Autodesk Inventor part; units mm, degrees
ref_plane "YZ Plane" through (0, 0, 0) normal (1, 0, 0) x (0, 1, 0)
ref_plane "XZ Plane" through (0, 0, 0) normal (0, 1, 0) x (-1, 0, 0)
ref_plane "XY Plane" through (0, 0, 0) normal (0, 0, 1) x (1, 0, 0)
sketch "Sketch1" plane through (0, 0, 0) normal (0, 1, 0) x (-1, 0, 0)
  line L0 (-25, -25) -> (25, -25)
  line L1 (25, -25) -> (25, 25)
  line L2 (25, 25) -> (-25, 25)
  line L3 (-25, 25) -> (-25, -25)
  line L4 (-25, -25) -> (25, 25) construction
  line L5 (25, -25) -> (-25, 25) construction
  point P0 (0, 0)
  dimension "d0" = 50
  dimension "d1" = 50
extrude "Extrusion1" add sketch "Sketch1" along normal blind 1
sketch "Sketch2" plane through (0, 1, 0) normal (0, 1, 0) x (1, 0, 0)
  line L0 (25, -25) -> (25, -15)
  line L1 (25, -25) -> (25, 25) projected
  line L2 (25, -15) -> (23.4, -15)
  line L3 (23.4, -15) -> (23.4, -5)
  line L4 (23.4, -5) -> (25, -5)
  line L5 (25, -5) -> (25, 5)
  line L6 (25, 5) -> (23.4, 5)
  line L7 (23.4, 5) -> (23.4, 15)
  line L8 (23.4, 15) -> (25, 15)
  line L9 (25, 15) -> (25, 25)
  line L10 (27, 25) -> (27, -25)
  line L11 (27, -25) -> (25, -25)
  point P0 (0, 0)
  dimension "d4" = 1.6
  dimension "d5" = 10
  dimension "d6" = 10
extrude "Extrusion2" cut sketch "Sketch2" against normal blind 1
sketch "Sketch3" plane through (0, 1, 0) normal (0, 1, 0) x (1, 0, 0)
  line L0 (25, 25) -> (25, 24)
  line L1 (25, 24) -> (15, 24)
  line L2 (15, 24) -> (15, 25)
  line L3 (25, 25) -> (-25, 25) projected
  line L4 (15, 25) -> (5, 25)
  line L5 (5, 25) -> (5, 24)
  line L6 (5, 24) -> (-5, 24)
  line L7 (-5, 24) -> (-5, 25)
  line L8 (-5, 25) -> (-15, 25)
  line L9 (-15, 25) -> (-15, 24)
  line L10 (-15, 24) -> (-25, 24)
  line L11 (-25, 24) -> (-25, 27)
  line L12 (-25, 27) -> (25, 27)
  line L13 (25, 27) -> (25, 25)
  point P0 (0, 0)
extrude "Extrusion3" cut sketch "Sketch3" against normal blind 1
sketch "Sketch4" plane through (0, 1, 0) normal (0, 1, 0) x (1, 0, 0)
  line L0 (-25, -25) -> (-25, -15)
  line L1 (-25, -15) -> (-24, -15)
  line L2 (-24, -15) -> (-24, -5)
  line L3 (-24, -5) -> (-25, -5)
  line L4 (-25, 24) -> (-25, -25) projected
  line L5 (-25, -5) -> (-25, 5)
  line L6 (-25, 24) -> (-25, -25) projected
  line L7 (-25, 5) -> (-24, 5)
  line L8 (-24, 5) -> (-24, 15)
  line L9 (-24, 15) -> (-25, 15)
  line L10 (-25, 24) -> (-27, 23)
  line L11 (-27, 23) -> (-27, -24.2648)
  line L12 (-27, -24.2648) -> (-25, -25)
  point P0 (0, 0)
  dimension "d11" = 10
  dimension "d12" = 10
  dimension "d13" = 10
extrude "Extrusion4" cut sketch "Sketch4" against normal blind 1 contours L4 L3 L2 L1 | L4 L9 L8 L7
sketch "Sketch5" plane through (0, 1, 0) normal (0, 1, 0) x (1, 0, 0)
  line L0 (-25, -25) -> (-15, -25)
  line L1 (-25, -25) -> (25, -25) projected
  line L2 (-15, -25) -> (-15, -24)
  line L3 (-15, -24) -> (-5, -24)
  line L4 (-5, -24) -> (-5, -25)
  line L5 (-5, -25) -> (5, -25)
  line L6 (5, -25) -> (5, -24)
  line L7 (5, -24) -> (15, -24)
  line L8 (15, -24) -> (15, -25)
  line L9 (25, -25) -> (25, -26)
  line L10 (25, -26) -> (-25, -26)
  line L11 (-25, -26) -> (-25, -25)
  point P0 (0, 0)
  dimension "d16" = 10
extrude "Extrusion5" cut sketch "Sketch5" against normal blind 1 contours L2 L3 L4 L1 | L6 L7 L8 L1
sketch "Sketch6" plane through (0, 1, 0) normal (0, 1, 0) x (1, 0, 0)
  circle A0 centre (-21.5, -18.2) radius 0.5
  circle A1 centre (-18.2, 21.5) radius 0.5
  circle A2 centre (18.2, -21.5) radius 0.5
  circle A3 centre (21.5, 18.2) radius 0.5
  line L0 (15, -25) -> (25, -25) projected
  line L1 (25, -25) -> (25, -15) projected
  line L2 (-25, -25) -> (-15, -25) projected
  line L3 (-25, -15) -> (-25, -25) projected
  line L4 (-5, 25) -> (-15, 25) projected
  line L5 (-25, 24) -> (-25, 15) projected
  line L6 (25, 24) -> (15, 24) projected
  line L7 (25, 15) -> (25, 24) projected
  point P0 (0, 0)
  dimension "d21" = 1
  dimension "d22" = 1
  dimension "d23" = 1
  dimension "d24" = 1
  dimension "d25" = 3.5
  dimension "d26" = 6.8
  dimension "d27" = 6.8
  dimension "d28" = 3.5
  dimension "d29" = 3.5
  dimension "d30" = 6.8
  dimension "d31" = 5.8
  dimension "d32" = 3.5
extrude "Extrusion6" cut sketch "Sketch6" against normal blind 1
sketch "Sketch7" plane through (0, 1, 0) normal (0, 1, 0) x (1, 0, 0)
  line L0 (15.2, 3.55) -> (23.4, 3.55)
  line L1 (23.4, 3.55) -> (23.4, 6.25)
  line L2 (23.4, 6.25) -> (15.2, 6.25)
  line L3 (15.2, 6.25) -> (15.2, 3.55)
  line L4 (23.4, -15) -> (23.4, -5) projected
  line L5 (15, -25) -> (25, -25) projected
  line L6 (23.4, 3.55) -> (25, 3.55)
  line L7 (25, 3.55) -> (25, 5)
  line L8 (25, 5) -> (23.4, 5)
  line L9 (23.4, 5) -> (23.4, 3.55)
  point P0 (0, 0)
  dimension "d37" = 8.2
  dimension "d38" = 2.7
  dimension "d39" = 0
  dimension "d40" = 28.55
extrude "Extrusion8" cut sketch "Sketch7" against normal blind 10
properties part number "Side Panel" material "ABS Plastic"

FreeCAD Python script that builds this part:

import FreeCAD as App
import Part
import Sketcher
from FreeCAD import Vector

doc = App.newDocument("Part")
params = doc.addObject("Spreadsheet::Sheet", "Params")
for row, (alias, value) in enumerate([
    ("sketch1_width", "50 mm"),
    ("pad1_length", "1 mm"),
    ("sketch2_height", "10 mm"),
    ("sketch2_width", "1.6 mm"),
    ("pocket1_length", "1 mm"),
    ("sketch3_width", "50 mm"),
    ("sketch3_height", "3 mm"),
    ("sketch3_height2", "1 mm"),
    ("pocket2_length", "1 mm"),
    ("sketch4_height", "10 mm"),
    ("sketch4_width", "1 mm"),
    ("pocket3_length", "1 mm"),
    ("sketch5_width", "10 mm"),
    ("sketch5_height", "1 mm"),
    ("pocket4_length", "1 mm"),
    ("sketch6_diameter", "1 mm"),
    ("pocket5_length", "1 mm"),
    ("sketch7_width", "8.2 mm"),
    ("sketch7_height", "2.7 mm"),
    ("sketch7_width2", "9.8 mm"),
    ("sketch7_height2", "1.45 mm"),
    ("pocket6_length", "10 mm"),
], start=1):
    params.set(f"A{row}", alias)
    params.set(f"B{row}", "=" + value)
    params.setAlias(f"B{row}", alias)

body = doc.addObject("PartDesign::Body", "Body")

sketch1 = doc.addObject("Sketcher::SketchObject", "Sketch")
body.addObject(sketch1)
sketch1.AttachmentSupport = (doc.XZ_Plane, [""])
sketch1.MapMode = "FlatFace"
sketch1.addGeometry(Part.LineSegment(Vector(25, 25, 0), Vector(25, -25, 0)), False)
sketch1.addGeometry(Part.LineSegment(Vector(25, -25, 0), Vector(-25, -25, 0)), False)
sketch1.addGeometry(Part.LineSegment(Vector(-25, -25, 0), Vector(-25, 25, 0)), False)
sketch1.addGeometry(Part.LineSegment(Vector(-25, 25, 0), Vector(25, 25, 0)), False)
sketch1.addConstraint(Sketcher.Constraint("Coincident", 0, 2, 1, 1))
sketch1.addConstraint(Sketcher.Constraint("Coincident", 1, 2, 2, 1))
sketch1.addConstraint(Sketcher.Constraint("Coincident", 2, 2, 3, 1))
sketch1.addConstraint(Sketcher.Constraint("Coincident", 3, 2, 0, 1))
sketch1.addConstraint(Sketcher.Constraint("Vertical", 0))
sketch1.addConstraint(Sketcher.Constraint("Horizontal", 1))
sketch1.addConstraint(Sketcher.Constraint("Vertical", 2))
sketch1.addConstraint(Sketcher.Constraint("Horizontal", 3))
sketch1.addConstraint(Sketcher.Constraint("Symmetric", 0, 2, 2, 2, -1, 1))
sketch1.addConstraint(Sketcher.Constraint("Equal", 3, 0))
sketch1.addConstraint(Sketcher.Constraint("DistanceX", 1, 2, 1, 1, 50.0))
sketch1.setExpression("Constraints[10]", "Params.sketch1_width")
pad1 = doc.addObject("PartDesign::Pad", "Pad")
body.addObject(pad1)
pad1.Profile = sketch1
pad1.setExpression("Length", "Params.pad1_length")
pad1.Reversed = True

sketch2 = doc.addObject("Sketcher::SketchObject", "Sketch001")
body.addObject(sketch2)
sketch2.AttachmentSupport = (doc.XZ_Plane, [""])
sketch2.MapMode = "FlatFace"
sketch2.AttachmentOffset = App.Placement(Vector(0, 0, -1), App.Rotation())
sketch2.addGeometry(Part.LineSegment(Vector(23.4, 15, 0), Vector(25, 15, 0)), False)
sketch2.addGeometry(Part.LineSegment(Vector(25, 15, 0), Vector(25, 5, 0)), False)
sketch2.addGeometry(Part.LineSegment(Vector(25, 5, 0), Vector(23.4, 5, 0)), False)
sketch2.addGeometry(Part.LineSegment(Vector(23.4, 5, 0), Vector(23.4, 15, 0)), False)
sketch2.addGeometry(Part.LineSegment(Vector(23.4, -5, 0), Vector(25, -5, 0)), False)
sketch2.addGeometry(Part.LineSegment(Vector(25, -5, 0), Vector(25, -15, 0)), False)
sketch2.addGeometry(Part.LineSegment(Vector(25, -15, 0), Vector(23.4, -15, 0)), False)
sketch2.addGeometry(Part.LineSegment(Vector(23.4, -15, 0), Vector(23.4, -5, 0)), False)
sketch2.addConstraint(Sketcher.Constraint("Coincident", 0, 2, 1, 1))
sketch2.addConstraint(Sketcher.Constraint("Coincident", 1, 2, 2, 1))
sketch2.addConstraint(Sketcher.Constraint("Coincident", 2, 2, 3, 1))
sketch2.addConstraint(Sketcher.Constraint("Coincident", 3, 2, 0, 1))
sketch2.addConstraint(Sketcher.Constraint("Coincident", 4, 2, 5, 1))
sketch2.addConstraint(Sketcher.Constraint("Coincident", 5, 2, 6, 1))
sketch2.addConstraint(Sketcher.Constraint("Coincident", 6, 2, 7, 1))
sketch2.addConstraint(Sketcher.Constraint("Coincident", 7, 2, 4, 1))
sketch2.addConstraint(Sketcher.Constraint("Horizontal", 0))
sketch2.addConstraint(Sketcher.Constraint("Vertical", 1))
sketch2.addConstraint(Sketcher.Constraint("Horizontal", 2))
sketch2.addConstraint(Sketcher.Constraint("Vertical", 3))
sketch2.addConstraint(Sketcher.Constraint("Horizontal", 4))
sketch2.addConstraint(Sketcher.Constraint("Vertical", 5))
sketch2.addConstraint(Sketcher.Constraint("Horizontal", 6))
sketch2.addConstraint(Sketcher.Constraint("Vertical", 7))
sketch2.addConstraint(Sketcher.Constraint("Symmetric", 1, 2, 4, 2, -1))
sketch2.addConstraint(Sketcher.Constraint("Symmetric", 3, 2, 6, 2, -1))
sketch2.addConstraint(Sketcher.Constraint("DistanceY", 1, 2, 1, 1, 10.0))
sketch2.addConstraint(Sketcher.Constraint("DistanceX", 0, 1, 0, 2, 1.6))
sketch2.addConstraint(Sketcher.Constraint("DistanceY", 4, 2, 1, 2, 10.0))
sketch2.addConstraint(Sketcher.Constraint("DistanceX", -1, 1, 0, 2, 25.0))
sketch2.setExpression("Constraints[18]", "Params.sketch2_height")
sketch2.setExpression("Constraints[19]", "Params.sketch2_width")
pocket1 = doc.addObject("PartDesign::Pocket", "Pocket")
body.addObject(pocket1)
pocket1.Profile = sketch2
pocket1.setExpression("Length", "Params.pocket1_length")
pocket1.Reversed = True

sketch3 = doc.addObject("Sketcher::SketchObject", "Sketch002")
body.addObject(sketch3)
sketch3.AttachmentSupport = (doc.XZ_Plane, [""])
sketch3.MapMode = "FlatFace"
sketch3.AttachmentOffset = App.Placement(Vector(0, 0, -1), App.Rotation())
sketch3.addGeometry(Part.LineSegment(Vector(25, -24, 0), Vector(25, -27, 0)), False)
sketch3.addGeometry(Part.LineSegment(Vector(25, -27, 0), Vector(-25, -27, 0)), False)
sketch3.addGeometry(Part.LineSegment(Vector(-25, -27, 0), Vector(-25, -24, 0)), False)
sketch3.addGeometry(Part.LineSegment(Vector(-25, -24, 0), Vector(-15, -24, 0)), False)
sketch3.addGeometry(Part.LineSegment(Vector(-15, -24, 0), Vector(-15, -25, 0)), False)
sketch3.addGeometry(Part.LineSegment(Vector(-15, -25, 0), Vector(-5, -25, 0)), False)
sketch3.addGeometry(Part.LineSegment(Vector(-5, -25, 0), Vector(-5, -24, 0)), False)
sketch3.addGeometry(Part.LineSegment(Vector(-5, -24, 0), Vector(5, -24, 0)), False)
sketch3.addGeometry(Part.LineSegment(Vector(5, -24, 0), Vector(5, -25, 0)), False)
sketch3.addGeometry(Part.LineSegment(Vector(5, -25, 0), Vector(15, -25, 0)), False)
sketch3.addGeometry(Part.LineSegment(Vector(15, -25, 0), Vector(15, -24, 0)), False)
sketch3.addGeometry(Part.LineSegment(Vector(15, -24, 0), Vector(25, -24, 0)), False)
sketch3.addConstraint(Sketcher.Constraint("Coincident", 0, 2, 1, 1))
sketch3.addConstraint(Sketcher.Constraint("Coincident", 1, 2, 2, 1))
sketch3.addConstraint(Sketcher.Constraint("Coincident", 2, 2, 3, 1))
sketch3.addConstraint(Sketcher.Constraint("Coincident", 3, 2, 4, 1))
sketch3.addConstraint(Sketcher.Constraint("Coincident", 4, 2, 5, 1))
sketch3.addConstraint(Sketcher.Constraint("Coincident", 5, 2, 6, 1))
sketch3.addConstraint(Sketcher.Constraint("Coincident", 6, 2, 7, 1))
sketch3.addConstraint(Sketcher.Constraint("Coincident", 7, 2, 8, 1))
sketch3.addConstraint(Sketcher.Constraint("Coincident", 8, 2, 9, 1))
sketch3.addConstraint(Sketcher.Constraint("Coincident", 9, 2, 10, 1))
sketch3.addConstraint(Sketcher.Constraint("Coincident", 10, 2, 11, 1))
sketch3.addConstraint(Sketcher.Constraint("Coincident", 11, 2, 0, 1))
sketch3.addConstraint(Sketcher.Constraint("Vertical", 0))
sketch3.addConstraint(Sketcher.Constraint("Horizontal", 1))
sketch3.addConstraint(Sketcher.Constraint("Vertical", 2))
sketch3.addConstraint(Sketcher.Constraint("Horizontal", 3))
sketch3.addConstraint(Sketcher.Constraint("Vertical", 4))
sketch3.addConstraint(Sketcher.Constraint("Horizontal", 5))
sketch3.addConstraint(Sketcher.Constraint("Vertical", 6))
sketch3.addConstraint(Sketcher.Constraint("Horizontal", 7))
sketch3.addConstraint(Sketcher.Constraint("Vertical", 8))
sketch3.addConstraint(Sketcher.Constraint("Horizontal", 9))
sketch3.addConstraint(Sketcher.Constraint("Vertical", 10))
sketch3.addConstraint(Sketcher.Constraint("Horizontal", 11))
sketch3.addConstraint(Sketcher.Constraint("Symmetric", 5, 2, 8, 2, -2))
sketch3.addConstraint(Sketcher.Constraint("Symmetric", 3, 2, 10, 2, -2))
sketch3.addConstraint(Sketcher.Constraint("Horizontal", 3, 2, 6, 2))
sketch3.addConstraint(Sketcher.Constraint("Equal", 3, 5))
sketch3.addConstraint(Sketcher.Constraint("Equal", 5, 7))
sketch3.addConstraint(Sketcher.Constraint("Equal", 9, 11))
sketch3.addConstraint(Sketcher.Constraint("DistanceX", 1, 2, 1, 1, 50.0))
sketch3.addConstraint(Sketcher.Constraint("DistanceY", 0, 2, 0, 1, 3.0))
sketch3.addConstraint(Sketcher.Constraint("DistanceY", 4, 2, 4, 1, 1.0))
sketch3.addConstraint(Sketcher.Constraint("DistanceY", 0, 2, -1, 1, 27.0))
sketch3.setExpression("Constraints[30]", "Params.sketch3_width")
sketch3.setExpression("Constraints[31]", "Params.sketch3_height")
sketch3.setExpression("Constraints[32]", "Params.sketch3_height2")
pocket2 = doc.addObject("PartDesign::Pocket", "Pocket001")
body.addObject(pocket2)
pocket2.Profile = sketch3
pocket2.setExpression("Length", "Params.pocket2_length")
pocket2.Reversed = True

sketch4 = doc.addObject("Sketcher::SketchObject", "Sketch003")
body.addObject(sketch4)
sketch4.AttachmentSupport = (doc.XZ_Plane, [""])
sketch4.MapMode = "FlatFace"
sketch4.AttachmentOffset = App.Placement(Vector(0, 0, -1), App.Rotation())
sketch4.addGeometry(Part.LineSegment(Vector(-25, 5, 0), Vector(-25, 15, 0)), False)
sketch4.addGeometry(Part.LineSegment(Vector(-25, 15, 0), Vector(-24, 15, 0)), False)
sketch4.addGeometry(Part.LineSegment(Vector(-24, 15, 0), Vector(-24, 5, 0)), False)
sketch4.addGeometry(Part.LineSegment(Vector(-24, 5, 0), Vector(-25, 5, 0)), False)
sketch4.addGeometry(Part.LineSegment(Vector(-25, -15, 0), Vector(-25, -5, 0)), False)
sketch4.addGeometry(Part.LineSegment(Vector(-25, -5, 0), Vector(-24, -5, 0)), False)
sketch4.addGeometry(Part.LineSegment(Vector(-24, -5, 0), Vector(-24, -15, 0)), False)
sketch4.addGeometry(Part.LineSegment(Vector(-24, -15, 0), Vector(-25, -15, 0)), False)
sketch4.addConstraint(Sketcher.Constraint("Coincident", 0, 2, 1, 1))
sketch4.addConstraint(Sketcher.Constraint("Coincident", 1, 2, 2, 1))
sketch4.addConstraint(Sketcher.Constraint("Coincident", 2, 2, 3, 1))
sketch4.addConstraint(Sketcher.Constraint("Coincident", 3, 2, 0, 1))
sketch4.addConstraint(Sketcher.Constraint("Coincident", 4, 2, 5, 1))
sketch4.addConstraint(Sketcher.Constraint("Coincident", 5, 2, 6, 1))
sketch4.addConstraint(Sketcher.Constraint("Coincident", 6, 2, 7, 1))
sketch4.addConstraint(Sketcher.Constraint("Coincident", 7, 2, 4, 1))
sketch4.addConstraint(Sketcher.Constraint("Vertical", 0))
sketch4.addConstraint(Sketcher.Constraint("Horizontal", 1))
sketch4.addConstraint(Sketcher.Constraint("Vertical", 2))
sketch4.addConstraint(Sketcher.Constraint("Horizontal", 3))
sketch4.addConstraint(Sketcher.Constraint("Vertical", 4))
sketch4.addConstraint(Sketcher.Constraint("Horizontal", 5))
sketch4.addConstraint(Sketcher.Constraint("Vertical", 6))
sketch4.addConstraint(Sketcher.Constraint("Horizontal", 7))
sketch4.addConstraint(Sketcher.Constraint("Symmetric", 3, 2, 4, 2, -1))
sketch4.addConstraint(Sketcher.Constraint("Symmetric", 1, 2, 6, 2, -1))
sketch4.addConstraint(Sketcher.Constraint("DistanceY", 0, 1, 0, 2, 10.0))
sketch4.addConstraint(Sketcher.Constraint("DistanceY", 4, 2, 3, 2, 10.0))
sketch4.addConstraint(Sketcher.Constraint("DistanceX", 1, 1, 1, 2, 1.0))
sketch4.addConstraint(Sketcher.Constraint("DistanceX", 0, 2, -1, 1, 25.0))
sketch4.setExpression("Constraints[18]", "Params.sketch4_height")
sketch4.setExpression("Constraints[20]", "Params.sketch4_width")
pocket3 = doc.addObject("PartDesign::Pocket", "Pocket002")
body.addObject(pocket3)
pocket3.Profile = sketch4
pocket3.setExpression("Length", "Params.pocket3_length")
pocket3.Reversed = True

sketch5 = doc.addObject("Sketcher::SketchObject", "Sketch004")
body.addObject(sketch5)
sketch5.AttachmentSupport = (doc.XZ_Plane, [""])
sketch5.MapMode = "FlatFace"
sketch5.AttachmentOffset = App.Placement(Vector(0, 0, -1), App.Rotation())
sketch5.addGeometry(Part.LineSegment(Vector(-15, 24, 0), Vector(-15, 25, 0)), False)
sketch5.addGeometry(Part.LineSegment(Vector(-15, 25, 0), Vector(-5, 25, 0)), False)
sketch5.addGeometry(Part.LineSegment(Vector(-5, 25, 0), Vector(-5, 24, 0)), False)
sketch5.addGeometry(Part.LineSegment(Vector(-5, 24, 0), Vector(-15, 24, 0)), False)
sketch5.addGeometry(Part.LineSegment(Vector(5, 24, 0), Vector(5, 25, 0)), False)
sketch5.addGeometry(Part.LineSegment(Vector(5, 25, 0), Vector(15, 25, 0)), False)
sketch5.addGeometry(Part.LineSegment(Vector(15, 25, 0), Vector(15, 24, 0)), False)
sketch5.addGeometry(Part.LineSegment(Vector(15, 24, 0), Vector(5, 24, 0)), False)
sketch5.addConstraint(Sketcher.Constraint("Coincident", 0, 2, 1, 1))
sketch5.addConstraint(Sketcher.Constraint("Coincident", 1, 2, 2, 1))
sketch5.addConstraint(Sketcher.Constraint("Coincident", 2, 2, 3, 1))
sketch5.addConstraint(Sketcher.Constraint("Coincident", 3, 2, 0, 1))
sketch5.addConstraint(Sketcher.Constraint("Coincident", 4, 2, 5, 1))
sketch5.addConstraint(Sketcher.Constraint("Coincident", 5, 2, 6, 1))
sketch5.addConstraint(Sketcher.Constraint("Coincident", 6, 2, 7, 1))
sketch5.addConstraint(Sketcher.Constraint("Coincident", 7, 2, 4, 1))
sketch5.addConstraint(Sketcher.Constraint("Vertical", 0))
sketch5.addConstraint(Sketcher.Constraint("Horizontal", 1))
sketch5.addConstraint(Sketcher.Constraint("Vertical", 2))
sketch5.addConstraint(Sketcher.Constraint("Horizontal", 3))
sketch5.addConstraint(Sketcher.Constraint("Vertical", 4))
sketch5.addConstraint(Sketcher.Constraint("Horizontal", 5))
sketch5.addConstraint(Sketcher.Constraint("Vertical", 6))
sketch5.addConstraint(Sketcher.Constraint("Horizontal", 7))
sketch5.addConstraint(Sketcher.Constraint("Symmetric", 1, 2, 4, 2, -2))
sketch5.addConstraint(Sketcher.Constraint("Symmetric", 3, 2, 6, 2, -2))
sketch5.addConstraint(Sketcher.Constraint("DistanceX", 1, 1, 1, 2, 10.0))
sketch5.addConstraint(Sketcher.Constraint("DistanceX", 1, 2, 4, 2, 10.0))
sketch5.addConstraint(Sketcher.Constraint("DistanceY", 0, 1, 0, 2, 1.0))
sketch5.addConstraint(Sketcher.Constraint("DistanceY", -1, 1, 0, 2, 25.0))
sketch5.setExpression("Constraints[18]", "Params.sketch5_width")
sketch5.setExpression("Constraints[20]", "Params.sketch5_height")
pocket4 = doc.addObject("PartDesign::Pocket", "Pocket003")
body.addObject(pocket4)
pocket4.Profile = sketch5
pocket4.setExpression("Length", "Params.pocket4_length")
pocket4.Reversed = True

sketch6 = doc.addObject("Sketcher::SketchObject", "Sketch005")
body.addObject(sketch6)
sketch6.AttachmentSupport = (doc.XZ_Plane, [""])
sketch6.MapMode = "FlatFace"
sketch6.AttachmentOffset = App.Placement(Vector(0, 0, -1), App.Rotation())
sketch6.addGeometry(Part.Circle(Vector(-21.5, 18.2, 0), Vector(0, 0, 1), 0.5), False)
sketch6.addGeometry(Part.Circle(Vector(-18.2, -21.5, 0), Vector(0, 0, 1), 0.5), False)
sketch6.addGeometry(Part.Circle(Vector(18.2, 21.5, 0), Vector(0, 0, 1), 0.5), False)
sketch6.addGeometry(Part.Circle(Vector(21.5, -18.2, 0), Vector(0, 0, 1), 0.5), False)
sketch6.addConstraint(Sketcher.Constraint("Equal", 0, 1))
sketch6.addConstraint(Sketcher.Constraint("Equal", 1, 2))
sketch6.addConstraint(Sketcher.Constraint("Equal", 2, 3))
sketch6.addConstraint(Sketcher.Constraint("Symmetric", 1, 3, 2, 3, -1, 1))
sketch6.addConstraint(Sketcher.Constraint("Symmetric", 0, 3, 3, 3, -1, 1))
sketch6.addConstraint(Sketcher.Constraint("Diameter", 0, 1.0))
sketch6.addConstraint(Sketcher.Constraint("DistanceY", 1, 3, 2, 3, 43.0))
sketch6.addConstraint(Sketcher.Constraint("DistanceX", 0, 3, 3, 3, 43.0))
sketch6.addConstraint(Sketcher.Constraint("DistanceY", -1, 1, 0, 3, 18.2))
sketch6.addConstraint(Sketcher.Constraint("DistanceX", 1, 3, -1, 1, 18.2))
sketch6.setExpression("Constraints[5]", "Params.sketch6_diameter")
pocket5 = doc.addObject("PartDesign::Pocket", "Pocket004")
body.addObject(pocket5)
pocket5.Profile = sketch6
pocket5.setExpression("Length", "Params.pocket5_length")
pocket5.Reversed = True

sketch7 = doc.addObject("Sketcher::SketchObject", "Sketch006")
body.addObject(sketch7)
sketch7.AttachmentSupport = (doc.XZ_Plane, [""])
sketch7.MapMode = "FlatFace"
sketch7.AttachmentOffset = App.Placement(Vector(0, 0, -1), App.Rotation())
sketch7.addGeometry(Part.LineSegment(Vector(15.2, -6.25, 0), Vector(15.2, -3.55, 0)), False)
sketch7.addGeometry(Part.LineSegment(Vector(15.2, -3.55, 0), Vector(25, -3.55, 0)), False)
sketch7.addGeometry(Part.LineSegment(Vector(25, -3.55, 0), Vector(25, -5, 0)), False)
sketch7.addGeometry(Part.LineSegment(Vector(25, -5, 0), Vector(23.4, -5, 0)), False)
sketch7.addGeometry(Part.LineSegment(Vector(23.4, -5, 0), Vector(23.4, -6.25, 0)), False)
sketch7.addGeometry(Part.LineSegment(Vector(23.4, -6.25, 0), Vector(15.2, -6.25, 0)), False)
sketch7.addConstraint(Sketcher.Constraint("Coincident", 0, 2, 1, 1))
sketch7.addConstraint(Sketcher.Constraint("Coincident", 1, 2, 2, 1))
sketch7.addConstraint(Sketcher.Constraint("Coincident", 2, 2, 3, 1))
sketch7.addConstraint(Sketcher.Constraint("Coincident", 3, 2, 4, 1))
sketch7.addConstraint(Sketcher.Constraint("Coincident", 4, 2, 5, 1))
sketch7.addConstraint(Sketcher.Constraint("Coincident", 5, 2, 0, 1))
sketch7.addConstraint(Sketcher.Constraint("Vertical", 0))
sketch7.addConstraint(Sketcher.Constraint("Horizontal", 1))
sketch7.addConstraint(Sketcher.Constraint("Vertical", 2))
sketch7.addConstraint(Sketcher.Constraint("Horizontal", 3))
sketch7.addConstraint(Sketcher.Constraint("Vertical", 4))
sketch7.addConstraint(Sketcher.Constraint("Horizontal", 5))
sketch7.addConstraint(Sketcher.Constraint("DistanceX", 5, 2, 5, 1, 8.2))
sketch7.addConstraint(Sketcher.Constraint("DistanceY", 0, 1, 0, 2, 2.7))
sketch7.addConstraint(Sketcher.Constraint("DistanceX", 1, 1, 1, 2, 9.8))
sketch7.addConstraint(Sketcher.Constraint("DistanceX", -1, 1, 1, 2, 25.0))
sketch7.addConstraint(Sketcher.Constraint("DistanceY", 2, 2, -1, 1, 5.0))
sketch7.addConstraint(Sketcher.Constraint("DistanceY", 2, 2, 2, 1, 1.45))
sketch7.setExpression("Constraints[12]", "Params.sketch7_width")
sketch7.setExpression("Constraints[13]", "Params.sketch7_height")
sketch7.setExpression("Constraints[14]", "Params.sketch7_width2")
sketch7.setExpression("Constraints[17]", "Params.sketch7_height2")
pocket6 = doc.addObject("PartDesign::Pocket", "Pocket005")
body.addObject(pocket6)
pocket6.Profile = sketch7
pocket6.setExpression("Length", "Params.pocket6_length")
pocket6.Reversed = True

doc.recompute()
